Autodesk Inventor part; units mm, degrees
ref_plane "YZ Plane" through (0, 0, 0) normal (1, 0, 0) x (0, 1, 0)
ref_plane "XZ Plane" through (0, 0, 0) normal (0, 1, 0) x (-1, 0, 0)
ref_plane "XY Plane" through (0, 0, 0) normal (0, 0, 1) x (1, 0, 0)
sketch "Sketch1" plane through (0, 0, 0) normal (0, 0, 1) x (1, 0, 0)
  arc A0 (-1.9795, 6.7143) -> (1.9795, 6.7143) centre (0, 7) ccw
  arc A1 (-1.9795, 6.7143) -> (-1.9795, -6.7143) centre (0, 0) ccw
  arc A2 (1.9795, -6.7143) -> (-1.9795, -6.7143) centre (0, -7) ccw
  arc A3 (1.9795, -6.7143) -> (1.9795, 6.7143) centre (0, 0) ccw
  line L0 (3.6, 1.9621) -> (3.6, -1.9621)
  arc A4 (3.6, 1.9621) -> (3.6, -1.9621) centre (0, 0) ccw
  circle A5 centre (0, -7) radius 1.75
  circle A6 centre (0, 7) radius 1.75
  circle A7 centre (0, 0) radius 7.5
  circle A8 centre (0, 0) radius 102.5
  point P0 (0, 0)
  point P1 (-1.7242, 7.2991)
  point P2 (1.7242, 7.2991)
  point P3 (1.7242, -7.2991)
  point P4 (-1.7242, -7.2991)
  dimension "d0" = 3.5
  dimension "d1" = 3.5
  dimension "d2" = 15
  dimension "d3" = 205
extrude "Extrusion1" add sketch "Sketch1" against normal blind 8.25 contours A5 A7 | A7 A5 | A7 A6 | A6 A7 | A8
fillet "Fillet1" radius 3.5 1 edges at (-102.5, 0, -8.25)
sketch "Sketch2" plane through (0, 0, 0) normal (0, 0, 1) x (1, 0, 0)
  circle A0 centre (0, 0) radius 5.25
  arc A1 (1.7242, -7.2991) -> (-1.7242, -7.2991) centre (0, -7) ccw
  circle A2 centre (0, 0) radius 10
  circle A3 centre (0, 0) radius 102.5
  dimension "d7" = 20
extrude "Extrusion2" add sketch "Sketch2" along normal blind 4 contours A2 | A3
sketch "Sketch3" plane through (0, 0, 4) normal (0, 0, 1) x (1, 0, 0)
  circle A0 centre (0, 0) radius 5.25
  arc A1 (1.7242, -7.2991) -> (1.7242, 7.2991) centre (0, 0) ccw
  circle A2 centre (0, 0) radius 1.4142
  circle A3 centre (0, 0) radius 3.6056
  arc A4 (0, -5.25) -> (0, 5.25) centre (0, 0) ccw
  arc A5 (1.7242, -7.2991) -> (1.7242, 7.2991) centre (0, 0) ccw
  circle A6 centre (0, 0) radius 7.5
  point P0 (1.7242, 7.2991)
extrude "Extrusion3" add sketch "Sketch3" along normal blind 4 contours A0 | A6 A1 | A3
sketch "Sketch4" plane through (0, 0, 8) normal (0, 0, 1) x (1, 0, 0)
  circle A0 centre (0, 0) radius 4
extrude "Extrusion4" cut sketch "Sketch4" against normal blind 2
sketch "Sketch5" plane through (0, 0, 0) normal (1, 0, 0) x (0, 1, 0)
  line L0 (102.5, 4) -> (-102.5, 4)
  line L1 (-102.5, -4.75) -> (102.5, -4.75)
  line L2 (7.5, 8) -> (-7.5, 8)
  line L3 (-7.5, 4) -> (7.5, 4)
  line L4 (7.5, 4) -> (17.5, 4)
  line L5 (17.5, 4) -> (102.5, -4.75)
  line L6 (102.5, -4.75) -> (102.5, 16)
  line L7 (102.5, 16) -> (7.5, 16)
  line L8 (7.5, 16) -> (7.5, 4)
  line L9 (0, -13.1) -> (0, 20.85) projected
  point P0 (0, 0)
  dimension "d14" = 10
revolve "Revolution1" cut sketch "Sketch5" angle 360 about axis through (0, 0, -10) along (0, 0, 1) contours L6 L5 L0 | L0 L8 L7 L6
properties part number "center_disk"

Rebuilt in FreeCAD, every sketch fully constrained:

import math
import FreeCAD as App
import Part
import Sketcher
Q = App.Units.Quantity


def edges_at(feature, points):
    """Names of the edges that pass closest to the given points."""
    edges = feature.Shape.Edges
    near = lambda p: min(range(len(edges)), key=lambda i: edges[i].distToShape(Part.Vertex(*p))[0])
    return sorted({f"Edge{near(p) + 1}" for p in points})


def add_polygon(sketch, points):
    """Adds a closed chain of lines whose ends are joined by coincident constraints."""
    first, n = sketch.GeometryCount, len(points)
    for a, b in zip(points, points[1:] + points[:1]):
        sketch.addGeometry(Part.LineSegment(App.Vector(*a, 0), App.Vector(*b, 0)), False)
    for i in range(n):
        sketch.addConstraint(Sketcher.Constraint("Coincident", first + i, 2, first + (i + 1) % n, 1))

doc = App.newDocument("Part")
body = doc.addObject("PartDesign::Body", "Body")

sketch1 = doc.addObject("Sketcher::SketchObject", "Sketch")
body.addObject(sketch1)
sketch1.AttachmentSupport = (doc.XY_Plane, [""])
sketch1.MapMode = "FlatFace"
sketch1.addGeometry(Part.Circle(App.Vector(0, 0, 0), App.Vector(0, 0, 1), 102.5), False)
sketch1.addGeometry(Part.ArcOfCircle(Part.Circle(App.Vector(0, -7, 0), App.Vector(0, 0, 1), 1.8), math.radians(-10), math.radians(190)), False)
sketch1.addGeometry(Part.ArcOfCircle(Part.Circle(App.Vector(0, 0, 0), App.Vector(0, 0, 1), 7.5), math.radians(103), math.radians(257)), False)
sketch1.addGeometry(Part.ArcOfCircle(Part.Circle(App.Vector(0, 7, 0), App.Vector(0, 0, 1), 1.8), math.radians(170), math.radians(370)), False)
sketch1.addGeometry(Part.ArcOfCircle(Part.Circle(App.Vector(0, 0, 0), App.Vector(0, 0, 1), 7.5), math.radians(-77), math.radians(77)), False)
sketch1.addConstraint(Sketcher.Constraint("Coincident", 1, 2, 2, 2))
sketch1.addConstraint(Sketcher.Constraint("Coincident", 2, 1, 3, 1))
sketch1.addConstraint(Sketcher.Constraint("Coincident", 3, 2, 4, 2))
sketch1.addConstraint(Sketcher.Constraint("Coincident", 4, 1, 1, 1))
sketch1.addConstraint(Sketcher.Constraint("Coincident", 0, 3, -1, 1))
sketch1.addConstraint(Sketcher.Constraint("Coincident", 2, 3, -1, 1))
sketch1.addConstraint(Sketcher.Constraint("Coincident", 4, 3, -1, 1))
sketch1.addConstraint(Sketcher.Constraint("Equal", 1, 3))
sketch1.addConstraint(Sketcher.Constraint("Equal", 2, 4))
sketch1.addConstraint(Sketcher.Constraint("Symmetric", 1, 3, 3, 3, -1, 1))
sketch1.addConstraint(Sketcher.Constraint("PointOnObject", 1, 3, -2))
sketch1.addConstraint(Sketcher.Constraint("Diameter", 0, Q("205 mm")))
sketch1.addConstraint(Sketcher.Constraint("Radius", 2, Q("7.5 mm")))
sketch1.addConstraint(Sketcher.Constraint("Radius", 1, Q("1.75 mm")))
sketch1.addConstraint(Sketcher.Constraint("DistanceY", 1, 3, -1, 1, Q("7 mm")))
pad1 = doc.addObject("PartDesign::Pad", "Pad")
body.addObject(pad1)
pad1.Profile = sketch1
pad1.Length = 8.25
pad1.Reversed = True
doc.recompute()

fillet = doc.addObject("PartDesign::Fillet", "Fillet")
body.addObject(fillet)
fillet.Base = (pad1, edges_at(pad1, [(-102.5, 0, -8.25)]))
fillet.Radius = 3.5

sketch2 = doc.addObject("Sketcher::SketchObject", "Sketch001")
body.addObject(sketch2)
sketch2.AttachmentSupport = (doc.XY_Plane, [""])
sketch2.MapMode = "FlatFace"
sketch2.addGeometry(Part.Circle(App.Vector(0, 0, 0), App.Vector(0, 0, 1), 102), False)
sketch2.addGeometry(Part.Circle(App.Vector(0, 0, 0), App.Vector(0, 0, 1), 5), False)
sketch2.addConstraint(Sketcher.Constraint("Coincident", 0, 3, -1, 1))
sketch2.addConstraint(Sketcher.Constraint("Coincident", 1, 3, -1, 1))
sketch2.addConstraint(Sketcher.Constraint("Diameter", 0, Q("205 mm")))
sketch2.addConstraint(Sketcher.Constraint("Diameter", 1, Q("10.5 mm")))
pad2 = doc.addObject("PartDesign::Pad", "Pad001")
body.addObject(pad2)
pad2.Profile = sketch2
pad2.Length = 4

sketch3 = doc.addObject("Sketcher::SketchObject", "Sketch002")
body.addObject(sketch3)
sketch3.AttachmentSupport = (doc.XY_Plane, [""])
sketch3.MapMode = "FlatFace"
sketch3.AttachmentOffset = App.Placement(App.Vector(0, 0, 4), App.Rotation())
sketch3.addGeometry(Part.Circle(App.Vector(0, 0, 0), App.Vector(0, 0, 1), 7.5), False)
sketch3.addGeometry(Part.Circle(App.Vector(0, 0, 0), App.Vector(0, 0, 1), 1.4), False)
sketch3.addConstraint(Sketcher.Constraint("Coincident", 0, 3, -1, 1))
sketch3.addConstraint(Sketcher.Constraint("Coincident", 1, 3, -1, 1))
sketch3.addConstraint(Sketcher.Constraint("Diameter", 0, Q("15 mm")))
sketch3.addConstraint(Sketcher.Constraint("Diameter", 1, Q("2.8284 mm")))
pad3 = doc.addObject("PartDesign::Pad", "Pad002")
body.addObject(pad3)
pad3.Profile = sketch3
pad3.Length = 4

sketch4 = doc.addObject("Sketcher::SketchObject", "Sketch003")
body.addObject(sketch4)
sketch4.AttachmentSupport = (doc.XY_Plane, [""])
sketch4.MapMode = "FlatFace"
sketch4.AttachmentOffset = App.Placement(App.Vector(0, 0, 8), App.Rotation())
sketch4.addGeometry(Part.Circle(App.Vector(0, 0, 0), App.Vector(0, 0, 1), 4), False)
sketch4.addConstraint(Sketcher.Constraint("Coincident", 0, 3, -1, 1))
sketch4.addConstraint(Sketcher.Constraint("Diameter", 0, Q("8 mm")))
pocket1 = doc.addObject("PartDesign::Pocket", "Pocket")
body.addObject(pocket1)
pocket1.Profile = sketch4
pocket1.Length = 2

sketch5 = doc.addObject("Sketcher::SketchObject", "Sketch004")
body.addObject(sketch5)
sketch5.AttachmentSupport = (doc.YZ_Plane, [""])
sketch5.MapMode = "FlatFace"
add_polygon(sketch5, [(102, -5), (102, 16), (8, 16), (8, 4), (18, 4)])
sketch5.addConstraint(Sketcher.Constraint("Vertical", 0))
sketch5.addConstraint(Sketcher.Constraint("Horizontal", 1))
sketch5.addConstraint(Sketcher.Constraint("Vertical", 2))
sketch5.addConstraint(Sketcher.Constraint("Horizontal", 3))
sketch5.addConstraint(Sketcher.Constraint("DistanceX", 3, 1, 3, 2, Q("10 mm")))
sketch5.addConstraint(Sketcher.Constraint("DistanceX", 1, 2, 1, 1, Q("95 mm")))
sketch5.addConstraint(Sketcher.Constraint("DistanceY", 2, 2, 2, 1, Q("12 mm")))
sketch5.addConstraint(Sketcher.Constraint("DistanceY", -1, 1, 0, 2, Q("16 mm")))
sketch5.addConstraint(Sketcher.Constraint("DistanceY", 0, 1, 0, 2, Q("20.75 mm")))
sketch5.addConstraint(Sketcher.Constraint("DistanceX", -1, 1, 0, 2, Q("102.5 mm")))
groove = doc.addObject("PartDesign::Groove", "Groove")
body.addObject(groove)
groove.Profile = sketch5
groove.ReferenceAxis = (sketch5, ["V_Axis"])
groove.Angle = 360

doc.recompute()
